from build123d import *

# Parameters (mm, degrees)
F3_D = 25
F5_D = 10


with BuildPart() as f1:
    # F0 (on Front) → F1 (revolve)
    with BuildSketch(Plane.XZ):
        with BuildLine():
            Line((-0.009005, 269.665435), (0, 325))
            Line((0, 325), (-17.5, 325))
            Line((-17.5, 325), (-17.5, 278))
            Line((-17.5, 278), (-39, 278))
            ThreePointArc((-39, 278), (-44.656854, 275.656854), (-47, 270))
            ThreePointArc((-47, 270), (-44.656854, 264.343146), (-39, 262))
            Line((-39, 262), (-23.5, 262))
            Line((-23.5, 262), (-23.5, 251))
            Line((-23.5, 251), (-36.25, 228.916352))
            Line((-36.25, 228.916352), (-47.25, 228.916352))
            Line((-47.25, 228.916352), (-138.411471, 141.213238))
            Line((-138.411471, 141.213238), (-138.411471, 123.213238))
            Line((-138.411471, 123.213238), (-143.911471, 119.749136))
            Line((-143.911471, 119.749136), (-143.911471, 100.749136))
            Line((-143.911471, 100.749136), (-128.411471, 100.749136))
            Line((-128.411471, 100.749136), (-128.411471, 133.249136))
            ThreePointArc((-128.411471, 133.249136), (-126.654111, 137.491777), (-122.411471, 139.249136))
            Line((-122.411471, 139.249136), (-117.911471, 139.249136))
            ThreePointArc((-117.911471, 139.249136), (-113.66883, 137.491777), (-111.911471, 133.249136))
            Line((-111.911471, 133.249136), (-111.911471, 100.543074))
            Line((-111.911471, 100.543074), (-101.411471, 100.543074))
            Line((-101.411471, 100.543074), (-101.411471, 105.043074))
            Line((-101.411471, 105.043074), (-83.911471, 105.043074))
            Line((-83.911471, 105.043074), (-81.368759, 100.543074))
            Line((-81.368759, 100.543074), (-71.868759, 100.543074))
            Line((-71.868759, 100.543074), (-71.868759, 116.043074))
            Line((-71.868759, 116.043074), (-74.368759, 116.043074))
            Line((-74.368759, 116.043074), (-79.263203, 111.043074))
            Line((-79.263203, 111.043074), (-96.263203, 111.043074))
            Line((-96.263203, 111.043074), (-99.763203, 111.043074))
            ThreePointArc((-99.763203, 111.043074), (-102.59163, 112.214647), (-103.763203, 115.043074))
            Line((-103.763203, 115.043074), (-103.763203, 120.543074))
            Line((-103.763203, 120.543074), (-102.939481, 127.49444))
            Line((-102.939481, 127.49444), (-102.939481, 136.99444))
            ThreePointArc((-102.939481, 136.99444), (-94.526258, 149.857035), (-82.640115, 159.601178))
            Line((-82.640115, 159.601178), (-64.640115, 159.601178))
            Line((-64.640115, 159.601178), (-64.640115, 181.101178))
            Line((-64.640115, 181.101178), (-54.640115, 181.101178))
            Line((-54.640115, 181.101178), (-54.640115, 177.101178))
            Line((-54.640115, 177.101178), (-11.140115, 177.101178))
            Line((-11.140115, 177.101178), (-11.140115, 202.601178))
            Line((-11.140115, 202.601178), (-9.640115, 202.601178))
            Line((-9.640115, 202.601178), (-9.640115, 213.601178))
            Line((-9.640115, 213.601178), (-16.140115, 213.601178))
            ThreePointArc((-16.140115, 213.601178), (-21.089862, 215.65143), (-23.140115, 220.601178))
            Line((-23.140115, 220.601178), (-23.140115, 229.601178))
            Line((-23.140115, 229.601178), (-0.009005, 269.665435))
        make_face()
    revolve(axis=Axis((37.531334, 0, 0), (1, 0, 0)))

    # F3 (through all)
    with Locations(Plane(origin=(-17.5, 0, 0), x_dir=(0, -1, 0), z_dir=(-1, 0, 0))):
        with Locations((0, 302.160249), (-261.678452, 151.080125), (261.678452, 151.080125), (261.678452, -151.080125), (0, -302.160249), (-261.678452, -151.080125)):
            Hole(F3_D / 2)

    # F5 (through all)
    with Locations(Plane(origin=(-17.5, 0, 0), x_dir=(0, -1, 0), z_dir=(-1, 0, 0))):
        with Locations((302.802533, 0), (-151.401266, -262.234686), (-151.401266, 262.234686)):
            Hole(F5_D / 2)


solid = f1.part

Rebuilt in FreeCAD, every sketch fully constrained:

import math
import FreeCAD as App
import Part
import Sketcher

V = App.Vector
Q = App.Units.Quantity

doc = App.newDocument("Part")
body = doc.addObject("PartDesign::Body", "Body")

sketch1 = doc.addObject("Sketcher::SketchObject", "Sketch")
body.addObject(sketch1)
sketch1.AttachmentSupport = (doc.XZ_Plane, [""])
sketch1.MapMode = "FlatFace"
sketch1.addGeometry([
    Part.LineSegment(V(-0.009005, 269.665435, 0), V(0, 325, 0)),
    Part.LineSegment(V(0, 325, 0), V(-17.5, 325, 0)),
    Part.LineSegment(V(-17.5, 325, 0), V(-17.5, 278, 0)),
    Part.LineSegment(V(-17.5, 278, 0), V(-39, 278, 0)),
    Part.ArcOfCircle(Part.Circle(V(-38.999999, 269.999999, 0), V(0, 0, 1), 8.000001), math.radians(90.000006), math.radians(179.999994)),
    Part.ArcOfCircle(Part.Circle(V(-38.999999, 270.000001, 0), V(0, 0, 1), 8.000001), math.radians(-179.999994), math.radians(-90.000006)),
    Part.LineSegment(V(-39, 262, 0), V(-23.5, 262, 0)),
    Part.LineSegment(V(-23.5, 262, 0), V(-23.5, 251, 0)),
    Part.LineSegment(V(-23.5, 251, 0), V(-36.25, 228.916352, 0)),
    Part.LineSegment(V(-36.25, 228.916352, 0), V(-47.25, 228.916352, 0)),
    Part.LineSegment(V(-47.25, 228.916352, 0), V(-138.411471, 141.213238, 0)),
    Part.LineSegment(V(-138.411471, 141.213238, 0), V(-138.411471, 123.213238, 0)),
    Part.LineSegment(V(-138.411471, 123.213238, 0), V(-143.911471, 119.749136, 0)),
    Part.LineSegment(V(-143.911471, 119.749136, 0), V(-143.911471, 100.749136, 0)),
    Part.LineSegment(V(-143.911471, 100.749136, 0), V(-128.411471, 100.749136, 0)),
    Part.LineSegment(V(-128.411471, 100.749136, 0), V(-128.411471, 133.249136, 0)),
    Part.ArcOfCircle(Part.Circle(V(-122.41147, 133.249135, 0), V(0, 0, 1), 6.000001), math.radians(90.000006), math.radians(179.999994)),
    Part.LineSegment(V(-122.411471, 139.249136, 0), V(-117.911471, 139.249136, 0)),
    Part.ArcOfCircle(Part.Circle(V(-117.91147, 133.249137, 0), V(0, 0, 1), 5.999999), math.radians(-0.00001), math.radians(90.00001)),
    Part.LineSegment(V(-111.911471, 133.249136, 0), V(-111.911471, 100.543074, 0)),
    Part.LineSegment(V(-111.911471, 100.543074, 0), V(-101.411471, 100.543074, 0)),
    Part.LineSegment(V(-101.411471, 100.543074, 0), V(-101.411471, 105.043074, 0)),
    Part.LineSegment(V(-101.411471, 105.043074, 0), V(-83.911471, 105.043074, 0)),
    Part.LineSegment(V(-83.911471, 105.043074, 0), V(-81.368759, 100.543074, 0)),
    Part.LineSegment(V(-81.368759, 100.543074, 0), V(-71.868759, 100.543074, 0)),
    Part.LineSegment(V(-71.868759, 100.543074, 0), V(-71.868759, 116.043074, 0)),
    Part.LineSegment(V(-71.868759, 116.043074, 0), V(-74.368759, 116.043074, 0)),
    Part.LineSegment(V(-74.368759, 116.043074, 0), V(-79.263203, 111.043074, 0)),
    Part.LineSegment(V(-79.263203, 111.043074, 0), V(-99.763203, 111.043074, 0)),
    Part.ArcOfCircle(Part.Circle(V(-99.763203, 115.043074, 0), V(0, 0, 1), 4), math.radians(-179.999994), math.radians(-90.000006)),
    Part.LineSegment(V(-103.763203, 115.043074, 0), V(-103.763203, 120.543074, 0)),
    Part.LineSegment(V(-103.763203, 120.543074, 0), V(-102.939481, 127.49444, 0)),
    Part.LineSegment(V(-102.939481, 127.49444, 0), V(-102.939481, 136.99444, 0)),
    Part.ArcOfCircle(Part.Circle(V(-56.868759, 116.043075, 0), V(0, 0, 1), 50.610979), math.radians(120.61088), math.radians(155.545607)),
    Part.LineSegment(V(-82.640115, 159.601178, 0), V(-64.640115, 159.601178, 0)),
    Part.LineSegment(V(-64.640115, 159.601178, 0), V(-64.640115, 181.101178, 0)),
    Part.LineSegment(V(-64.640115, 181.101178, 0), V(-54.640115, 181.101178, 0)),
    Part.LineSegment(V(-54.640115, 181.101178, 0), V(-54.640115, 177.101178, 0)),
    Part.LineSegment(V(-54.640115, 177.101178, 0), V(-11.140115, 177.101178, 0)),
    Part.LineSegment(V(-11.140115, 177.101178, 0), V(-11.140115, 202.601178, 0)),
    Part.LineSegment(V(-11.140115, 202.601178, 0), V(-9.640115, 202.601178, 0)),
    Part.LineSegment(V(-9.640115, 202.601178, 0), V(-9.640115, 213.601178, 0)),
    Part.LineSegment(V(-9.640115, 213.601178, 0), V(-16.140115, 213.601178, 0)),
    Part.ArcOfCircle(Part.Circle(V(-16.140115, 220.601178, 0), V(0, 0, 1), 7), math.radians(179.999999), math.radians(270.000001)),
    Part.LineSegment(V(-23.140115, 220.601178, 0), V(-23.140115, 229.601178, 0)),
    Part.LineSegment(V(-23.140115, 229.601178, 0), V(-0.009005, 269.665435, 0)),
], False)
sketch1.addConstraint([
    Sketcher.Constraint("Coincident", 0, 2, 1, 1),
    Sketcher.Constraint("Coincident", 1, 2, 2, 1),
    Sketcher.Constraint("Coincident", 2, 2, 3, 1),
    Sketcher.Constraint("Tangent", 3, 2, 4, 1),
    Sketcher.Constraint("Tangent", 4, 2, 5, 1),
    Sketcher.Constraint("Tangent", 5, 2, 6, 1),
    Sketcher.Constraint("Coincident", 6, 2, 7, 1),
    Sketcher.Constraint("Coincident", 7, 2, 8, 1),
    Sketcher.Constraint("Coincident", 8, 2, 9, 1),
    Sketcher.Constraint("Coincident", 9, 2, 10, 1),
    Sketcher.Constraint("Coincident", 10, 2, 11, 1),
    Sketcher.Constraint("Coincident", 11, 2, 12, 1),
    Sketcher.Constraint("Coincident", 12, 2, 13, 1),
    Sketcher.Constraint("Coincident", 13, 2, 14, 1),
    Sketcher.Constraint("Coincident", 14, 2, 15, 1),
    Sketcher.Constraint("Tangent", 15, 2, 16, 2),
    Sketcher.Constraint("Tangent", 16, 1, 17, 1),
    Sketcher.Constraint("Tangent", 17, 2, 18, 2),
    Sketcher.Constraint("Tangent", 18, 1, 19, 1),
    Sketcher.Constraint("Coincident", 19, 2, 20, 1),
    Sketcher.Constraint("Coincident", 20, 2, 21, 1),
    Sketcher.Constraint("Coincident", 21, 2, 22, 1),
    Sketcher.Constraint("Coincident", 22, 2, 23, 1),
    Sketcher.Constraint("Coincident", 23, 2, 24, 1),
    Sketcher.Constraint("Coincident", 24, 2, 25, 1),
    Sketcher.Constraint("Coincident", 25, 2, 26, 1),
    Sketcher.Constraint("Coincident", 26, 2, 27, 1),
    Sketcher.Constraint("Coincident", 27, 2, 28, 1),
    Sketcher.Constraint("Tangent", 28, 2, 29, 2),
    Sketcher.Constraint("Tangent", 29, 1, 30, 1),
    Sketcher.Constraint("Coincident", 30, 2, 31, 1),
    Sketcher.Constraint("Coincident", 31, 2, 32, 1),
    Sketcher.Constraint("Coincident", 32, 2, 33, 2),
    Sketcher.Constraint("Coincident", 33, 1, 34, 1),
    Sketcher.Constraint("Coincident", 34, 2, 35, 1),
    Sketcher.Constraint("Coincident", 35, 2, 36, 1),
    Sketcher.Constraint("Coincident", 36, 2, 37, 1),
    Sketcher.Constraint("Coincident", 37, 2, 38, 1),
    Sketcher.Constraint("Coincident", 38, 2, 39, 1),
    Sketcher.Constraint("Coincident", 39, 2, 40, 1),
    Sketcher.Constraint("Coincident", 40, 2, 41, 1),
    Sketcher.Constraint("Coincident", 41, 2, 42, 1),
    Sketcher.Constraint("Tangent", 42, 2, 43, 2),
    Sketcher.Constraint("Tangent", 43, 1, 44, 1),
    Sketcher.Constraint("Coincident", 44, 2, 45, 1),
    Sketcher.Constraint("Coincident", 45, 2, 0, 1),
    Sketcher.Constraint("Horizontal", 1),
    Sketcher.Constraint("Vertical", 2),
    Sketcher.Constraint("Horizontal", 3),
    Sketcher.Constraint("Horizontal", 6),
    Sketcher.Constraint("Vertical", 7),
    Sketcher.Constraint("Horizontal", 9),
    Sketcher.Constraint("Vertical", 11),
    Sketcher.Constraint("Vertical", 13),
    Sketcher.Constraint("Horizontal", 14),
    Sketcher.Constraint("Vertical", 15),
    Sketcher.Constraint("Horizontal", 17),
    Sketcher.Constraint("Vertical", 19),
    Sketcher.Constraint("Horizontal", 20),
    Sketcher.Constraint("Vertical", 21),
    Sketcher.Constraint("Horizontal", 22),
    Sketcher.Constraint("Horizontal", 24),
    Sketcher.Constraint("Vertical", 25),
    Sketcher.Constraint("Horizontal", 26),
    Sketcher.Constraint("Horizontal", 28),
    Sketcher.Constraint("Vertical", 30),
    Sketcher.Constraint("Vertical", 32),
    Sketcher.Constraint("Horizontal", 34),
    Sketcher.Constraint("Vertical", 35),
    Sketcher.Constraint("Horizontal", 36),
    Sketcher.Constraint("Vertical", 37),
    Sketcher.Constraint("Horizontal", 38),
    Sketcher.Constraint("Vertical", 39),
    Sketcher.Constraint("Horizontal", 40),
    Sketcher.Constraint("Vertical", 41),
    Sketcher.Constraint("Horizontal", 42),
    Sketcher.Constraint("Vertical", 44),
    Sketcher.Constraint("Equal", 4, 5),
    Sketcher.Constraint("Equal", 16, 18),
    Sketcher.Constraint("PointOnObject", 0, 2, -2),
    Sketcher.Constraint("Parallel", 8, 45),
    Sketcher.Constraint("Horizontal", 5, 3, 4, 2),
    Sketcher.Constraint("Horizontal", 20, 2, 23, 2),
    Sketcher.Constraint("Horizontal", 33, 3, 25, 2),
    Sketcher.Constraint("Equal", 6, 14),
    Sketcher.Constraint("Equal", 1, 22),
    Sketcher.Constraint("Equal", 9, 7),
    Sketcher.Constraint("Equal", 34, 11),
    Sketcher.Constraint("Equal", 17, 21),
    Sketcher.Constraint("Equal", 14, 25),
    Sketcher.Constraint("Equal", 24, 32),
    Sketcher.Constraint("Equal", 3, 35),
    Sketcher.Constraint("Equal", 7, 41),
    Sketcher.Constraint("Radius", 4, Q("8.000001 mm")),
    Sketcher.Constraint("Radius", 16, Q("6.000001 mm")),
    Sketcher.Constraint("Radius", 29, Q("4 mm")),
    Sketcher.Constraint("Radius", 43, Q("7 mm")),
    Sketcher.Constraint("DistanceX", 9, 2, 9, 1, Q("11 mm")),
    Sketcher.Constraint("DistanceX", 34, 1, 34, 2, Q("18 mm")),
    Sketcher.Constraint("DistanceX", 36, 1, 36, 2, Q("10 mm")),
    Sketcher.Constraint("DistanceY", 2, 2, 2, 1, Q("47 mm")),
    Sketcher.Constraint("DistanceY", 13, 2, 13, 1, Q("19 mm")),
    Sketcher.Constraint("DistanceY", 37, 2, 37, 1, Q("4 mm")),
    Sketcher.Constraint("DistanceY", 44, 1, 44, 2, Q("9 mm")),
    Sketcher.Constraint("Angle", 8, Q("-120 deg")),
    Sketcher.Constraint("Distance", 31, Q("7.000001 mm")),
    Sketcher.Constraint("DistanceX", 1, 2, 1, 1, Q("17.5 mm")),
    Sketcher.Constraint("DistanceX", 3, 2, 3, 1, Q("21.5 mm")),
    Sketcher.Constraint("DistanceX", 6, 1, 6, 2, Q("15.5 mm")),
    Sketcher.Constraint("DistanceX", 17, 1, 17, 2, Q("4.5 mm")),
    Sketcher.Constraint("DistanceX", 20, 1, 20, 2, Q("10.5 mm")),
    Sketcher.Constraint("DistanceX", 24, 1, 24, 2, Q("9.5 mm")),
    Sketcher.Constraint("DistanceX", 26, 2, 26, 1, Q("2.5 mm")),
    Sketcher.Constraint("DistanceX", 28, 2, 28, 1, Q("20.5 mm")),
    Sketcher.Constraint("DistanceX", 38, 1, 38, 2, Q("43.5 mm")),
    Sketcher.Constraint("DistanceX", 40, 1, 40, 2, Q("1.5 mm")),
    Sketcher.Constraint("DistanceX", 42, 2, 42, 1, Q("6.5 mm")),
    Sketcher.Constraint("DistanceY", 15, 1, 15, 2, Q("32.5 mm")),
    Sketcher.Constraint("DistanceY", 30, 1, 30, 2, Q("5.5 mm")),
    Sketcher.Constraint("DistanceY", 39, 1, 39, 2, Q("25.5 mm")),
    Sketcher.Constraint("DistanceY", -1, 1, 4, 3, Q("269.999999 mm")),
    Sketcher.Constraint("DistanceY", 29, 3, 33, 3, Q("1 mm")),
    Sketcher.Constraint("DistanceX", 10, 2, 16, 3, Q("16.000001 mm")),
    Sketcher.Constraint("DistanceX", 24, 2, 33, 3, Q("15 mm")),
    Sketcher.Constraint("Distance", 8, Q("25.5 mm")),
    Sketcher.Constraint("Distance", 10, Q("126.5 mm")),
    Sketcher.Constraint("Distance", 12, Q("6.5 mm")),
    Sketcher.Constraint("Radius", 33, Q("50.610979 mm")),
    Sketcher.Constraint("DistanceY", 19, 2, 19, 1, Q("32.706062 mm")),
    Sketcher.Constraint("Distance", 45, Q("46.262219 mm")),
    Sketcher.Constraint("DistanceX", 16, 3, -1, 1, Q("122.41147 mm")),
    Sketcher.Constraint("DistanceX", 33, 3, -1, 1, Q("56.868759 mm")),
    Sketcher.Constraint("DistanceX", 31, 2, -1, 1, Q("102.939481 mm")),
    Sketcher.Constraint("DistanceY", -1, 1, 33, 1, Q("159.601178 mm")),
])
revolution = doc.addObject("PartDesign::Revolution", "Revolution")
body.addObject(revolution)
revolution.Profile = sketch1
revolution.ReferenceAxis = (sketch1, ["H_Axis"])
revolution.Angle = 360

sketch2 = doc.addObject("Sketcher::SketchObject", "Sketch001")
body.addObject(sketch2)
sketch2.AttachmentSupport = (doc.YZ_Plane, [""])
sketch2.MapMode = "FlatFace"
sketch2.AttachmentOffset = App.Placement(V(0, 0, -17.5), App.Rotation())
sketch2.addGeometry([
    Part.Circle(V(0, 302.160249, 0), V(0, 0, 1), 12.5),
    Part.Circle(V(261.678452, 151.080125, 0), V(0, 0, 1), 12.5),
    Part.Circle(V(-261.678452, 151.080125, 0), V(0, 0, 1), 12.5),
    Part.Circle(V(-261.678452, -151.080125, 0), V(0, 0, 1), 12.5),
    Part.Circle(V(0, -302.160249, 0), V(0, 0, 1), 12.5),
    Part.Circle(V(261.678452, -151.080125, 0), V(0, 0, 1), 12.5),
], False)
sketch2.addConstraint([
    Sketcher.Constraint("Equal", 0, 1),
    Sketcher.Constraint("Equal", 1, 2),
    Sketcher.Constraint("Equal", 2, 3),
    Sketcher.Constraint("Equal", 3, 4),
    Sketcher.Constraint("Equal", 4, 5),
    Sketcher.Constraint("Symmetric", 1, 3, 3, 3, -1, 1),
    Sketcher.Constraint("Symmetric", 0, 3, 4, 3, -1, 1),
    Sketcher.Constraint("Symmetric", 2, 3, 5, 3, -1, 1),
    Sketcher.Constraint("Symmetric", 1, 3, 2, 3, -2),
    Sketcher.Constraint("PointOnObject", 0, 3, -2),
    Sketcher.Constraint("Diameter", 0, Q("25 mm")),
    Sketcher.Constraint("DistanceY", 4, 3, 0, 3, Q("604.320498 mm")),
    Sketcher.Constraint("DistanceX", -1, 1, 1, 3, Q("261.678452 mm")),
    Sketcher.Constraint("DistanceY", 3, 3, 2, 3, Q("302.16025 mm")),
])
doc.recompute()
hole = doc.addObject("PartDesign::Hole", "Hole")
body.addObject(hole)
hole.Profile = sketch2
hole.ThreadType = "None"
hole.Diameter = 25
hole.DepthType = "ThroughAll"
hole.Reversed = True

sketch3 = doc.addObject("Sketcher::SketchObject", "Sketch002")
body.addObject(sketch3)
sketch3.AttachmentSupport = (doc.YZ_Plane, [""])
sketch3.MapMode = "FlatFace"
sketch3.AttachmentOffset = App.Placement(V(0, 0, -17.5), App.Rotation())
sketch3.addGeometry([
    Part.Circle(V(-302.802533, 0, 0), V(0, 0, 1), 5),
    Part.Circle(V(151.401266, -262.234686, 0), V(0, 0, 1), 5),
    Part.Circle(V(151.401266, 262.234686, 0), V(0, 0, 1), 5),
], False)
sketch3.addConstraint([
    Sketcher.Constraint("Equal", 0, 1),
    Sketcher.Constraint("Equal", 1, 2),
    Sketcher.Constraint("Symmetric", 1, 3, 2, 3, -1),
    Sketcher.Constraint("PointOnObject", 0, 3, -1),
    Sketcher.Constraint("Diameter", 0, Q("10 mm")),
    Sketcher.Constraint("DistanceX", 0, 3, 1, 3, Q("454.203799 mm")),
    Sketcher.Constraint("DistanceY", 1, 3, 2, 3, Q("524.469372 mm")),
    Sketcher.Constraint("DistanceX", 0, 3, -1, 1, Q("302.802533 mm")),
])
doc.recompute()
hole2 = doc.addObject("PartDesign::Hole", "Hole001")
body.addObject(hole2)
hole2.Profile = sketch3
hole2.ThreadType = "None"
hole2.Diameter = 10
hole2.DepthType = "ThroughAll"
hole2.Reversed = True

doc.recompute()
